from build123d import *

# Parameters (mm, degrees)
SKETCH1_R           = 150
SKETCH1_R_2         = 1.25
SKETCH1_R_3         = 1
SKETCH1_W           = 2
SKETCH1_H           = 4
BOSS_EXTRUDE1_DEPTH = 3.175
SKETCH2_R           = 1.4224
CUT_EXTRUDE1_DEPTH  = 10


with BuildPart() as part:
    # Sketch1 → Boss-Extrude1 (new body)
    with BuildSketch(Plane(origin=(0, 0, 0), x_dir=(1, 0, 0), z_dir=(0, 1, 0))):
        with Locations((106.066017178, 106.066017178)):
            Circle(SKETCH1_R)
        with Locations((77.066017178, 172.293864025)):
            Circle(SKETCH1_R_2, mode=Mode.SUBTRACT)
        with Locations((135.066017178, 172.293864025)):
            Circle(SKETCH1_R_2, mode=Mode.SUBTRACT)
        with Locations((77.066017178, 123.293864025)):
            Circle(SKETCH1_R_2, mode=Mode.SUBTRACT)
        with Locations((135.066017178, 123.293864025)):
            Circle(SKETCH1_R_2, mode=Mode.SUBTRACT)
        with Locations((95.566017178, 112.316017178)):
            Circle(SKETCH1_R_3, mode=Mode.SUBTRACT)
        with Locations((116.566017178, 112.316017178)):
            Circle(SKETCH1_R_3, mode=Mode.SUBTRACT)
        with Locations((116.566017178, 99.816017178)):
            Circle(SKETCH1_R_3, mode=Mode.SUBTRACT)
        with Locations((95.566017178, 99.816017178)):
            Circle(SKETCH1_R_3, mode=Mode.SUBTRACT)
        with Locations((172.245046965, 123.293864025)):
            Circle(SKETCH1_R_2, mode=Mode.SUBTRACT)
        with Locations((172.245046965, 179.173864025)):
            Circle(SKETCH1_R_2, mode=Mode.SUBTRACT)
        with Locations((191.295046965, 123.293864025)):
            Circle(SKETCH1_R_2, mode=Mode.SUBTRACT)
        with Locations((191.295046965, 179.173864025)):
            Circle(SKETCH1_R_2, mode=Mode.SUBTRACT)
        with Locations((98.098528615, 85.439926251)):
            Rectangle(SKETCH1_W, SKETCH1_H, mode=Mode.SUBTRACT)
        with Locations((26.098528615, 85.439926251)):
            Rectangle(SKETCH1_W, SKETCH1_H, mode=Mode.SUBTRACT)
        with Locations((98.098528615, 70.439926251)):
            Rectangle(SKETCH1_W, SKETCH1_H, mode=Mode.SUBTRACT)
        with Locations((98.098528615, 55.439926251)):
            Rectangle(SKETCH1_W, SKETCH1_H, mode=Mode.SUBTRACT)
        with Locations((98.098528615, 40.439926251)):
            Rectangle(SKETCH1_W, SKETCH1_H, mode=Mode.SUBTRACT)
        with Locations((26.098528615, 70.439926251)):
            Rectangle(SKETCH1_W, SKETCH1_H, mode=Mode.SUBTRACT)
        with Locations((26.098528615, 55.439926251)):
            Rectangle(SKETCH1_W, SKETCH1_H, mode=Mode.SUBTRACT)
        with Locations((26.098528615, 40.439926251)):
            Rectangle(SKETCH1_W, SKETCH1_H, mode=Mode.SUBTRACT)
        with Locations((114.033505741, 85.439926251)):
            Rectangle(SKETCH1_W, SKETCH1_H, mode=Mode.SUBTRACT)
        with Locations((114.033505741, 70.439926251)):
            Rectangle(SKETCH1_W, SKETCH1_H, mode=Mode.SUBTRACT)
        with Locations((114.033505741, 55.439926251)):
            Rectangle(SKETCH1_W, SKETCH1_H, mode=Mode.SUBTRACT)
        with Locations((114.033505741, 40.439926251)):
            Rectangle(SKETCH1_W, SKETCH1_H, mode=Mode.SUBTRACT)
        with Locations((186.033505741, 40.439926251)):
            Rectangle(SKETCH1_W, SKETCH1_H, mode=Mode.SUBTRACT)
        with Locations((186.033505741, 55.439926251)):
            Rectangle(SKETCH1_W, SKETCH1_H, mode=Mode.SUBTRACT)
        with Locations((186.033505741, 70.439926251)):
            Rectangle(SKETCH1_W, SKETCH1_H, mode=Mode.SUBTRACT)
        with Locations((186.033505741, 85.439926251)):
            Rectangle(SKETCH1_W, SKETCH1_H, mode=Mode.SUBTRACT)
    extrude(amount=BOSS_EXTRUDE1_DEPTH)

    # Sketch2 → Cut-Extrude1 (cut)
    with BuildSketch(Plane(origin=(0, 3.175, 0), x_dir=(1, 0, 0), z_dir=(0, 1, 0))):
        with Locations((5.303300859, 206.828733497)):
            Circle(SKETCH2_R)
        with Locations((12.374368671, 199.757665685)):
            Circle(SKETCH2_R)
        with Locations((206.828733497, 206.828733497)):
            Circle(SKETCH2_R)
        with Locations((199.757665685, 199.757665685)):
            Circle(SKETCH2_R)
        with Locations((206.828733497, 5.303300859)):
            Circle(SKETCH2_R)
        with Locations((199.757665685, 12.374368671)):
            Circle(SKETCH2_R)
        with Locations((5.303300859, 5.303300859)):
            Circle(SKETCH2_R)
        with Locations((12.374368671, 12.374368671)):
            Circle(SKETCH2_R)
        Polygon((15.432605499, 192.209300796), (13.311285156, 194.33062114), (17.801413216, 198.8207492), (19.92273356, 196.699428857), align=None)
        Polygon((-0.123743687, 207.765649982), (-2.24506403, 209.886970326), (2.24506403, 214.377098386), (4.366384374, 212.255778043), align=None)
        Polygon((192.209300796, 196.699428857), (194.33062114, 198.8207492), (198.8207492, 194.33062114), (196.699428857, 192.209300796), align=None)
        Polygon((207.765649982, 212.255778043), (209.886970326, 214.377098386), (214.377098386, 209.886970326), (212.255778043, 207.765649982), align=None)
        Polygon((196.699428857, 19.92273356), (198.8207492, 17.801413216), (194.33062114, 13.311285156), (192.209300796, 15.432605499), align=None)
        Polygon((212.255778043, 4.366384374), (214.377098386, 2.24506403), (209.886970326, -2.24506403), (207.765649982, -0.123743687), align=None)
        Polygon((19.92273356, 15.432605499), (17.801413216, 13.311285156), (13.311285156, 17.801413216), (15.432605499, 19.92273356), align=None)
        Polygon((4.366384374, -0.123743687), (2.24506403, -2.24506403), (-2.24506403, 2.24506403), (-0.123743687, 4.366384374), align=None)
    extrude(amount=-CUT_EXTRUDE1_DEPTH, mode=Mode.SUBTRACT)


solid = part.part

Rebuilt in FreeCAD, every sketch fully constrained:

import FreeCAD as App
import Part
import Sketcher
from FreeCAD import Vector
Q = App.Units.Quantity

doc = App.newDocument("Part")
body = doc.addObject("PartDesign::Body", "Body")

# Sketch on XZ plane
sketch1 = body.newObject("Sketcher::SketchObject", "Sketch")
sketch1.AttachmentSupport = (doc.getObject("XZ_Plane"), [""])
sketch1.MapMode = "FlatFace"
sketch1.addGeometry([
    Part.Circle(Vector(106.066017, -106.066017, 0), Vector(0, 0, 1), 150),  # 0
    Part.LineSegment(Vector(27.098529, -38.439926, 0), Vector(25.098529, -38.439926, 0)),  # 1
    Part.LineSegment(Vector(25.098529, -38.439926, 0), Vector(25.098529, -42.439926, 0)),  # 2
    Part.LineSegment(Vector(25.098529, -42.439926, 0), Vector(27.098529, -42.439926, 0)),  # 3
    Part.LineSegment(Vector(27.098529, -42.439926, 0), Vector(27.098529, -38.439926, 0)),  # 4
    Part.LineSegment(Vector(27.098529, -53.439926, 0), Vector(25.098529, -53.439926, 0)),  # 5
    Part.LineSegment(Vector(25.098529, -53.439926, 0), Vector(25.098529, -57.439926, 0)),  # 6
    Part.LineSegment(Vector(25.098529, -57.439926, 0), Vector(27.098529, -57.439926, 0)),  # 7
    Part.LineSegment(Vector(27.098529, -57.439926, 0), Vector(27.098529, -53.439926, 0)),  # 8
    Part.LineSegment(Vector(27.098529, -68.439926, 0), Vector(25.098529, -68.439926, 0)),  # 9
    Part.LineSegment(Vector(25.098529, -68.439926, 0), Vector(25.098529, -72.439926, 0)),  # 10
    Part.LineSegment(Vector(25.098529, -72.439926, 0), Vector(27.098529, -72.439926, 0)),  # 11
    Part.LineSegment(Vector(27.098529, -72.439926, 0), Vector(27.098529, -68.439926, 0)),  # 12
    Part.LineSegment(Vector(99.098529, -38.439926, 0), Vector(97.098529, -38.439926, 0)),  # 13
    Part.LineSegment(Vector(97.098529, -38.439926, 0), Vector(97.098529, -42.439926, 0)),  # 14
    Part.LineSegment(Vector(97.098529, -42.439926, 0), Vector(99.098529, -42.439926, 0)),  # 15
    Part.LineSegment(Vector(99.098529, -42.439926, 0), Vector(99.098529, -38.439926, 0)),  # 16
    Part.LineSegment(Vector(99.098529, -53.439926, 0), Vector(97.098529, -53.439926, 0)),  # 17
    Part.LineSegment(Vector(97.098529, -53.439926, 0), Vector(97.098529, -57.439926, 0)),  # 18
    Part.LineSegment(Vector(97.098529, -57.439926, 0), Vector(99.098529, -57.439926, 0)),  # 19
    Part.LineSegment(Vector(99.098529, -57.439926, 0), Vector(99.098529, -53.439926, 0)),  # 20
    Part.LineSegment(Vector(99.098529, -68.439926, 0), Vector(97.098529, -68.439926, 0)),  # 21
    Part.LineSegment(Vector(97.098529, -68.439926, 0), Vector(97.098529, -72.439926, 0)),  # 22
    Part.LineSegment(Vector(97.098529, -72.439926, 0), Vector(99.098529, -72.439926, 0)),  # 23
    Part.LineSegment(Vector(99.098529, -72.439926, 0), Vector(99.098529, -68.439926, 0)),  # 24
    Part.LineSegment(Vector(27.098529, -83.439926, 0), Vector(25.098529, -83.439926, 0)),  # 25
    Part.LineSegment(Vector(25.098529, -83.439926, 0), Vector(25.098529, -87.439926, 0)),  # 26
    Part.LineSegment(Vector(25.098529, -87.439926, 0), Vector(27.098529, -87.439926, 0)),  # 27
    Part.LineSegment(Vector(27.098529, -87.439926, 0), Vector(27.098529, -83.439926, 0)),  # 28
    Part.LineSegment(Vector(99.098529, -83.439926, 0), Vector(97.098529, -83.439926, 0)),  # 29
    Part.LineSegment(Vector(97.098529, -83.439926, 0), Vector(97.098529, -87.439926, 0)),  # 30
    Part.LineSegment(Vector(97.098529, -87.439926, 0), Vector(99.098529, -87.439926, 0)),  # 31
    Part.LineSegment(Vector(99.098529, -87.439926, 0), Vector(99.098529, -83.439926, 0)),  # 32
    Part.Circle(Vector(95.566017, -99.816017, 0), Vector(0, 0, 1), 1),  # 33
    Part.LineSegment(Vector(115.033506, -38.439926, 0), Vector(113.033506, -38.439926, 0)),  # 34
    Part.LineSegment(Vector(113.033506, -38.439926, 0), Vector(113.033506, -42.439926, 0)),  # 35
    Part.LineSegment(Vector(113.033506, -42.439926, 0), Vector(115.033506, -42.439926, 0)),  # 36
    Part.LineSegment(Vector(115.033506, -42.439926, 0), Vector(115.033506, -38.439926, 0)),  # 37
    Part.LineSegment(Vector(115.033506, -53.439926, 0), Vector(113.033506, -53.439926, 0)),  # 38
    Part.LineSegment(Vector(113.033506, -53.439926, 0), Vector(113.033506, -57.439926, 0)),  # 39
    Part.LineSegment(Vector(113.033506, -57.439926, 0), Vector(115.033506, -57.439926, 0)),  # 40
    Part.LineSegment(Vector(115.033506, -57.439926, 0), Vector(115.033506, -53.439926, 0)),  # 41
    Part.LineSegment(Vector(115.033506, -68.439926, 0), Vector(113.033506, -68.439926, 0)),  # 42
    Part.LineSegment(Vector(113.033506, -68.439926, 0), Vector(113.033506, -72.439926, 0)),  # 43
    Part.LineSegment(Vector(113.033506, -72.439926, 0), Vector(115.033506, -72.439926, 0)),  # 44
    Part.LineSegment(Vector(115.033506, -72.439926, 0), Vector(115.033506, -68.439926, 0)),  # 45
    Part.LineSegment(Vector(187.033506, -38.439926, 0), Vector(185.033506, -38.439926, 0)),  # 46
    Part.LineSegment(Vector(185.033506, -38.439926, 0), Vector(185.033506, -42.439926, 0)),  # 47
    Part.LineSegment(Vector(185.033506, -42.439926, 0), Vector(187.033506, -42.439926, 0)),  # 48
    Part.LineSegment(Vector(187.033506, -42.439926, 0), Vector(187.033506, -38.439926, 0)),  # 49
    Part.LineSegment(Vector(187.033506, -53.439926, 0), Vector(185.033506, -53.439926, 0)),  # 50
    Part.LineSegment(Vector(185.033506, -53.439926, 0), Vector(185.033506, -57.439926, 0)),  # 51
    Part.LineSegment(Vector(185.033506, -57.439926, 0), Vector(187.033506, -57.439926, 0)),  # 52
    Part.LineSegment(Vector(187.033506, -57.439926, 0), Vector(187.033506, -53.439926, 0)),  # 53
    Part.LineSegment(Vector(187.033506, -68.439926, 0), Vector(185.033506, -68.439926, 0)),  # 54
    Part.LineSegment(Vector(185.033506, -68.439926, 0), Vector(185.033506, -72.439926, 0)),  # 55
    Part.LineSegment(Vector(185.033506, -72.439926, 0), Vector(187.033506, -72.439926, 0)),  # 56
    Part.LineSegment(Vector(187.033506, -72.439926, 0), Vector(187.033506, -68.439926, 0)),  # 57
    Part.LineSegment(Vector(115.033506, -83.439926, 0), Vector(113.033506, -83.439926, 0)),  # 58
    Part.LineSegment(Vector(113.033506, -83.439926, 0), Vector(113.033506, -87.439926, 0)),  # 59
    Part.LineSegment(Vector(113.033506, -87.439926, 0), Vector(115.033506, -87.439926, 0)),  # 60
    Part.LineSegment(Vector(115.033506, -87.439926, 0), Vector(115.033506, -83.439926, 0)),  # 61
    Part.Circle(Vector(116.566017, -99.816017, 0), Vector(0, 0, 1), 1),  # 62
    Part.LineSegment(Vector(187.033506, -83.439926, 0), Vector(185.033506, -83.439926, 0)),  # 63
    Part.LineSegment(Vector(185.033506, -83.439926, 0), Vector(185.033506, -87.439926, 0)),  # 64
    Part.LineSegment(Vector(185.033506, -87.439926, 0), Vector(187.033506, -87.439926, 0)),  # 65
    Part.LineSegment(Vector(187.033506, -87.439926, 0), Vector(187.033506, -83.439926, 0)),  # 66
    Part.Circle(Vector(77.066017, -123.293864, 0), Vector(0, 0, 1), 1.25),  # 67
    Part.Circle(Vector(95.566017, -112.316017, 0), Vector(0, 0, 1), 1),  # 68
    Part.Circle(Vector(77.066017, -172.293864, 0), Vector(0, 0, 1), 1.25),  # 69
    Part.Circle(Vector(116.566017, -112.316017, 0), Vector(0, 0, 1), 1),  # 70
    Part.Circle(Vector(135.066017, -123.293864, 0), Vector(0, 0, 1), 1.25),  # 71
    Part.Circle(Vector(172.245047, -123.293864, 0), Vector(0, 0, 1), 1.25),  # 72
    Part.Circle(Vector(191.295047, -123.293864, 0), Vector(0, 0, 1), 1.25),  # 73
    Part.Circle(Vector(135.066017, -172.293864, 0), Vector(0, 0, 1), 1.25),  # 74
    Part.Circle(Vector(172.245047, -179.173864, 0), Vector(0, 0, 1), 1.25),  # 75
    Part.Circle(Vector(191.295047, -179.173864, 0), Vector(0, 0, 1), 1.25),  # 76
], False)
sketch1.addConstraint([
    Sketcher.Constraint("Coincident", 1, 2, 2, 1),
    Sketcher.Constraint("Coincident", 2, 2, 3, 1),
    Sketcher.Constraint("Coincident", 3, 2, 4, 1),
    Sketcher.Constraint("Coincident", 4, 2, 1, 1),
    Sketcher.Constraint("Coincident", 5, 2, 6, 1),
    Sketcher.Constraint("Coincident", 6, 2, 7, 1),
    Sketcher.Constraint("Coincident", 7, 2, 8, 1),
    Sketcher.Constraint("Coincident", 8, 2, 5, 1),
    Sketcher.Constraint("Coincident", 9, 2, 10, 1),
    Sketcher.Constraint("Coincident", 10, 2, 11, 1),
    Sketcher.Constraint("Coincident", 11, 2, 12, 1),
    Sketcher.Constraint("Coincident", 12, 2, 9, 1),
    Sketcher.Constraint("Coincident", 13, 2, 14, 1),
    Sketcher.Constraint("Coincident", 14, 2, 15, 1),
    Sketcher.Constraint("Coincident", 15, 2, 16, 1),
    Sketcher.Constraint("Coincident", 16, 2, 13, 1),
    Sketcher.Constraint("Coincident", 17, 2, 18, 1),
    Sketcher.Constraint("Coincident", 18, 2, 19, 1),
    Sketcher.Constraint("Coincident", 19, 2, 20, 1),
    Sketcher.Constraint("Coincident", 20, 2, 17, 1),
    Sketcher.Constraint("Coincident", 21, 2, 22, 1),
    Sketcher.Constraint("Coincident", 22, 2, 23, 1),
    Sketcher.Constraint("Coincident", 23, 2, 24, 1),
    Sketcher.Constraint("Coincident", 24, 2, 21, 1),
    Sketcher.Constraint("Coincident", 25, 2, 26, 1),
    Sketcher.Constraint("Coincident", 26, 2, 27, 1),
    Sketcher.Constraint("Coincident", 27, 2, 28, 1),
    Sketcher.Constraint("Coincident", 28, 2, 25, 1),
    Sketcher.Constraint("Coincident", 29, 2, 30, 1),
    Sketcher.Constraint("Coincident", 30, 2, 31, 1),
    Sketcher.Constraint("Coincident", 31, 2, 32, 1),
    Sketcher.Constraint("Coincident", 32, 2, 29, 1),
    Sketcher.Constraint("Coincident", 34, 2, 35, 1),
    Sketcher.Constraint("Coincident", 35, 2, 36, 1),
    Sketcher.Constraint("Coincident", 36, 2, 37, 1),
    Sketcher.Constraint("Coincident", 37, 2, 34, 1),
    Sketcher.Constraint("Coincident", 38, 2, 39, 1),
    Sketcher.Constraint("Coincident", 39, 2, 40, 1),
    Sketcher.Constraint("Coincident", 40, 2, 41, 1),
    Sketcher.Constraint("Coincident", 41, 2, 38, 1),
    Sketcher.Constraint("Coincident", 42, 2, 43, 1),
    Sketcher.Constraint("Coincident", 43, 2, 44, 1),
    Sketcher.Constraint("Coincident", 44, 2, 45, 1),
    Sketcher.Constraint("Coincident", 45, 2, 42, 1),
    Sketcher.Constraint("Coincident", 46, 2, 47, 1),
    Sketcher.Constraint("Coincident", 47, 2, 48, 1),
    Sketcher.Constraint("Coincident", 48, 2, 49, 1),
    Sketcher.Constraint("Coincident", 49, 2, 46, 1),
    Sketcher.Constraint("Coincident", 50, 2, 51, 1),
    Sketcher.Constraint("Coincident", 51, 2, 52, 1),
    Sketcher.Constraint("Coincident", 52, 2, 53, 1),
    Sketcher.Constraint("Coincident", 53, 2, 50, 1),
    Sketcher.Constraint("Coincident", 54, 2, 55, 1),
    Sketcher.Constraint("Coincident", 55, 2, 56, 1),
    Sketcher.Constraint("Coincident", 56, 2, 57, 1),
    Sketcher.Constraint("Coincident", 57, 2, 54, 1),
    Sketcher.Constraint("Coincident", 58, 2, 59, 1),
    Sketcher.Constraint("Coincident", 59, 2, 60, 1),
    Sketcher.Constraint("Coincident", 60, 2, 61, 1),
    Sketcher.Constraint("Coincident", 61, 2, 58, 1),
    Sketcher.Constraint("Coincident", 63, 2, 64, 1),
    Sketcher.Constraint("Coincident", 64, 2, 65, 1),
    Sketcher.Constraint("Coincident", 65, 2, 66, 1),
    Sketcher.Constraint("Coincident", 66, 2, 63, 1),
    Sketcher.Constraint("Horizontal", 1),
    Sketcher.Constraint("Vertical", 2),
    Sketcher.Constraint("Horizontal", 3),
    Sketcher.Constraint("Vertical", 4),
    Sketcher.Constraint("Horizontal", 5),
    Sketcher.Constraint("Vertical", 6),
    Sketcher.Constraint("Horizontal", 7),
    Sketcher.Constraint("Vertical", 8),
    Sketcher.Constraint("Horizontal", 9),
    Sketcher.Constraint("Vertical", 10),
    Sketcher.Constraint("Horizontal", 11),
    Sketcher.Constraint("Vertical", 12),
    Sketcher.Constraint("Horizontal", 13),
    Sketcher.Constraint("Vertical", 14),
    Sketcher.Constraint("Horizontal", 15),
    Sketcher.Constraint("Vertical", 16),
    Sketcher.Constraint("Horizontal", 17),
    Sketcher.Constraint("Vertical", 18),
    Sketcher.Constraint("Horizontal", 19),
    Sketcher.Constraint("Vertical", 20),
    Sketcher.Constraint("Horizontal", 21),
    Sketcher.Constraint("Vertical", 22),
    Sketcher.Constraint("Horizontal", 23),
    Sketcher.Constraint("Vertical", 24),
    Sketcher.Constraint("Horizontal", 25),
    Sketcher.Constraint("Vertical", 26),
    Sketcher.Constraint("Horizontal", 27),
    Sketcher.Constraint("Vertical", 28),
    Sketcher.Constraint("Horizontal", 29),
    Sketcher.Constraint("Vertical", 30),
    Sketcher.Constraint("Horizontal", 31),
    Sketcher.Constraint("Vertical", 32),
    Sketcher.Constraint("Horizontal", 34),
    Sketcher.Constraint("Vertical", 35),
    Sketcher.Constraint("Horizontal", 36),
    Sketcher.Constraint("Vertical", 37),
    Sketcher.Constraint("Horizontal", 38),
    Sketcher.Constraint("Vertical", 39),
    Sketcher.Constraint("Horizontal", 40),
    Sketcher.Constraint("Vertical", 41),
    Sketcher.Constraint("Horizontal", 42),
    Sketcher.Constraint("Vertical", 43),
    Sketcher.Constraint("Horizontal", 44),
    Sketcher.Constraint("Vertical", 45),
    Sketcher.Constraint("Horizontal", 46),
    Sketcher.Constraint("Vertical", 47),
    Sketcher.Constraint("Horizontal", 48),
    Sketcher.Constraint("Vertical", 49),
    Sketcher.Constraint("Horizontal", 50),
    Sketcher.Constraint("Vertical", 51),
    Sketcher.Constraint("Horizontal", 52),
    Sketcher.Constraint("Vertical", 53),
    Sketcher.Constraint("Horizontal", 54),
    Sketcher.Constraint("Vertical", 55),
    Sketcher.Constraint("Horizontal", 56),
    Sketcher.Constraint("Vertical", 57),
    Sketcher.Constraint("Horizontal", 58),
    Sketcher.Constraint("Vertical", 59),
    Sketcher.Constraint("Horizontal", 60),
    Sketcher.Constraint("Vertical", 61),
    Sketcher.Constraint("Horizontal", 63),
    Sketcher.Constraint("Vertical", 64),
    Sketcher.Constraint("Horizontal", 65),
    Sketcher.Constraint("Vertical", 66),
    Sketcher.Constraint("Equal", 33, 62),
    Sketcher.Constraint("Equal", 62, 68),
    Sketcher.Constraint("Equal", 67, 69),
    Sketcher.Constraint("Equal", 68, 70),
    Sketcher.Constraint("Equal", 69, 71),
    Sketcher.Constraint("Equal", 71, 72),
    Sketcher.Constraint("Equal", 72, 73),
    Sketcher.Constraint("Equal", 73, 74),
    Sketcher.Constraint("Equal", 74, 75),
    Sketcher.Constraint("Equal", 75, 76),
    Sketcher.Constraint("Horizontal", 33, 3, 62, 3),
    Sketcher.Constraint("Horizontal", 68, 3, 70, 3),
    Sketcher.Constraint("Horizontal", 67, 3, 71, 3),
    Sketcher.Constraint("Horizontal", 71, 3, 72, 3),
    Sketcher.Constraint("Horizontal", 72, 3, 73, 3),
    Sketcher.Constraint("Horizontal", 69, 3, 74, 3),
    Sketcher.Constraint("Horizontal", 75, 3, 76, 3),
    Sketcher.Constraint("Horizontal", 4, 2, 13, 2),
    Sketcher.Constraint("Horizontal", 3, 2, 14, 2),
    Sketcher.Constraint("Horizontal", 8, 2, 17, 2),
    Sketcher.Constraint("Horizontal", 7, 2, 18, 2),
    Sketcher.Constraint("Horizontal", 12, 2, 21, 2),
    Sketcher.Constraint("Horizontal", 11, 2, 22, 2),
    Sketcher.Constraint("Horizontal", 28, 2, 29, 2),
    Sketcher.Constraint("Horizontal", 27, 2, 30, 2),
    Sketcher.Constraint("Horizontal", 16, 2, 34, 2),
    Sketcher.Constraint("Horizontal", 15, 2, 35, 2),
    Sketcher.Constraint("Horizontal", 20, 2, 38, 2),
    Sketcher.Constraint("Horizontal", 19, 2, 39, 2),
    Sketcher.Constraint("Horizontal", 24, 2, 42, 2),
    Sketcher.Constraint("Horizontal", 23, 2, 43, 2),
    Sketcher.Constraint("Horizontal", 37, 2, 46, 2),
    Sketcher.Constraint("Horizontal", 36, 2, 47, 2),
    Sketcher.Constraint("Horizontal", 41, 2, 50, 2),
    Sketcher.Constraint("Horizontal", 40, 2, 51, 2),
    Sketcher.Constraint("Horizontal", 45, 2, 54, 2),
    Sketcher.Constraint("Horizontal", 44, 2, 55, 2),
    Sketcher.Constraint("Horizontal", 32, 2, 58, 2),
    Sketcher.Constraint("Horizontal", 31, 2, 59, 2),
    Sketcher.Constraint("Horizontal", 61, 2, 63, 2),
    Sketcher.Constraint("Horizontal", 60, 2, 64, 2),
    Sketcher.Constraint("Vertical", 33, 3, 68, 3),
    Sketcher.Constraint("Vertical", 67, 3, 69, 3),
    Sketcher.Constraint("Vertical", 62, 3, 70, 3),
    Sketcher.Constraint("Vertical", 71, 3, 74, 3),
    Sketcher.Constraint("Vertical", 72, 3, 75, 3),
    Sketcher.Constraint("Vertical", 73, 3, 76, 3),
    Sketcher.Constraint("Vertical", 2, 2, 5, 2),
    Sketcher.Constraint("Vertical", 4, 2, 7, 2),
    Sketcher.Constraint("Vertical", 6, 2, 9, 2),
    Sketcher.Constraint("Vertical", 8, 2, 11, 2),
    Sketcher.Constraint("Vertical", 14, 2, 17, 2),
    Sketcher.Constraint("Vertical", 16, 2, 19, 2),
    Sketcher.Constraint("Vertical", 18, 2, 21, 2),
    Sketcher.Constraint("Vertical", 20, 2, 23, 2),
    Sketcher.Constraint("Vertical", 10, 2, 25, 2),
    Sketcher.Constraint("Vertical", 12, 2, 27, 2),
    Sketcher.Constraint("Vertical", 22, 2, 29, 2),
    Sketcher.Constraint("Vertical", 24, 2, 31, 2),
    Sketcher.Constraint("Vertical", 35, 2, 38, 2),
    Sketcher.Constraint("Vertical", 37, 2, 40, 2),
    Sketcher.Constraint("Vertical", 39, 2, 42, 2),
    Sketcher.Constraint("Vertical", 41, 2, 44, 2),
    Sketcher.Constraint("Vertical", 47, 2, 50, 2),
    Sketcher.Constraint("Vertical", 49, 2, 52, 2),
    Sketcher.Constraint("Vertical", 51, 2, 54, 2),
    Sketcher.Constraint("Vertical", 53, 2, 56, 2),
    Sketcher.Constraint("Vertical", 43, 2, 58, 2),
    Sketcher.Constraint("Vertical", 45, 2, 60, 2),
    Sketcher.Constraint("Vertical", 55, 2, 63, 2),
    Sketcher.Constraint("Vertical", 57, 2, 65, 2),
    Sketcher.Constraint("Equal", 11, 13),
    Sketcher.Constraint("Equal", 31, 34),
    Sketcher.Constraint("Equal", 44, 46),
    Sketcher.Constraint("Equal", 4, 6),
    Sketcher.Constraint("Equal", 8, 10),
    Sketcher.Constraint("Equal", 24, 26),
    Sketcher.Constraint("Diameter", 0, Q("300 mm")),
    Sketcher.Constraint("Diameter", 33, Q("2 mm")),
    Sketcher.Constraint("Diameter", 67, Q("2.5 mm")),
    Sketcher.Constraint("DistanceX", 1, 2, 1, 1, Q("2 mm")),
    Sketcher.Constraint("DistanceY", 2, 2, 2, 1, Q("4 mm")),
    Sketcher.Constraint("DistanceX", -1, 1, 1, 2, Q("25.098529 mm")),
    Sketcher.Constraint("DistanceX", -1, 1, 13, 2, Q("97.098529 mm")),
    Sketcher.Constraint("DistanceX", -1, 1, 0, 3, Q("106.066017 mm")),
    Sketcher.Constraint("DistanceY", 0, 3, -1, 1, Q("106.066017 mm")),
    Sketcher.Constraint("DistanceX", -1, 1, 33, 3, Q("95.566017 mm")),
    Sketcher.Constraint("DistanceY", 33, 3, -1, 1, Q("99.816017 mm")),
    Sketcher.Constraint("DistanceX", -1, 1, 62, 3, Q("116.566017 mm")),
    Sketcher.Constraint("DistanceX", -1, 1, 67, 3, Q("77.066017 mm")),
    Sketcher.Constraint("DistanceY", 67, 3, -1, 1, Q("123.293864 mm")),
    Sketcher.Constraint("DistanceY", 68, 3, -1, 1, Q("112.316017 mm")),
    Sketcher.Constraint("DistanceY", 69, 3, -1, 1, Q("172.293864 mm")),
    Sketcher.Constraint("DistanceX", -1, 1, 71, 3, Q("135.066017 mm")),
    Sketcher.Constraint("DistanceX", -1, 1, 72, 3, Q("172.245047 mm")),
    Sketcher.Constraint("DistanceX", -1, 1, 73, 3, Q("191.295047 mm")),
    Sketcher.Constraint("DistanceY", 75, 3, -1, 1, Q("179.173864 mm")),
    Sketcher.Constraint("DistanceY", 1, 2, -1, 1, Q("38.439926 mm")),
    Sketcher.Constraint("DistanceY", 5, 2, -1, 1, Q("53.439926 mm")),
    Sketcher.Constraint("DistanceY", 9, 2, -1, 1, Q("68.439926 mm")),
    Sketcher.Constraint("DistanceY", 25, 2, -1, 1, Q("83.439926 mm")),
    Sketcher.Constraint("DistanceX", -1, 1, 34, 2, Q("113.033506 mm")),
    Sketcher.Constraint("DistanceX", -1, 1, 46, 2, Q("185.033506 mm")),
])
pad1 = body.newObject("PartDesign::Pad", "Pad")
pad1.Profile = sketch1
pad1.Length = 3.175
pad1.Reversed = True

# Sketch on XZ plane
sketch2 = body.newObject("Sketcher::SketchObject", "Sketch001")
sketch2.AttachmentSupport = (doc.getObject("XZ_Plane"), [""])
sketch2.MapMode = "FlatFace"
sketch2.AttachmentOffset = App.Placement(Vector(0, 0, -3.175), App.Rotation())
sketch2.addGeometry([
    Part.Circle(Vector(5.303301, -206.828733, 0), Vector(0, 0, 1), 1.4224),  # 0
    Part.Circle(Vector(12.374369, -199.757666, 0), Vector(0, 0, 1), 1.4224),  # 1
    Part.Circle(Vector(206.828733, -206.828733, 0), Vector(0, 0, 1), 1.4224),  # 2
    Part.Circle(Vector(199.757666, -199.757666, 0), Vector(0, 0, 1), 1.4224),  # 3
    Part.Circle(Vector(206.828733, -5.303301, 0), Vector(0, 0, 1), 1.4224),  # 4
    Part.Circle(Vector(199.757666, -12.374369, 0), Vector(0, 0, 1), 1.4224),  # 5
    Part.Circle(Vector(5.303301, -5.303301, 0), Vector(0, 0, 1), 1.4224),  # 6
    Part.Circle(Vector(12.374369, -12.374369, 0), Vector(0, 0, 1), 1.4224),  # 7
    Part.LineSegment(Vector(13.311285, -194.330621, 0), Vector(15.432605, -192.209301, 0)),  # 8
    Part.LineSegment(Vector(15.432605, -192.209301, 0), Vector(19.922734, -196.699429, 0)),  # 9
    Part.LineSegment(Vector(19.922734, -196.699429, 0), Vector(17.801413, -198.820749, 0)),  # 10
    Part.LineSegment(Vector(17.801413, -198.820749, 0), Vector(13.311285, -194.330621, 0)),  # 11
    Part.LineSegment(Vector(-2.245064, -209.88697, 0), Vector(-0.123744, -207.76565, 0)),  # 12
    Part.LineSegment(Vector(-0.123744, -207.76565, 0), Vector(4.366384, -212.255778, 0)),  # 13
    Part.LineSegment(Vector(4.366384, -212.255778, 0), Vector(2.245064, -214.377098, 0)),  # 14
    Part.LineSegment(Vector(2.245064, -214.377098, 0), Vector(-2.245064, -209.88697, 0)),  # 15
    Part.LineSegment(Vector(194.330621, -198.820749, 0), Vector(192.209301, -196.699429, 0)),  # 16
    Part.LineSegment(Vector(192.209301, -196.699429, 0), Vector(196.699429, -192.209301, 0)),  # 17
    Part.LineSegment(Vector(196.699429, -192.209301, 0), Vector(198.820749, -194.330621, 0)),  # 18
    Part.LineSegment(Vector(198.820749, -194.330621, 0), Vector(194.330621, -198.820749, 0)),  # 19
    Part.LineSegment(Vector(209.88697, -214.377098, 0), Vector(207.76565, -212.255778, 0)),  # 20
    Part.LineSegment(Vector(207.76565, -212.255778, 0), Vector(212.255778, -207.76565, 0)),  # 21
    Part.LineSegment(Vector(212.255778, -207.76565, 0), Vector(214.377098, -209.88697, 0)),  # 22
    Part.LineSegment(Vector(214.377098, -209.88697, 0), Vector(209.88697, -214.377098, 0)),  # 23
    Part.LineSegment(Vector(198.820749, -17.801413, 0), Vector(196.699429, -19.922734, 0)),  # 24
    Part.LineSegment(Vector(196.699429, -19.922734, 0), Vector(192.209301, -15.432605, 0)),  # 25
    Part.LineSegment(Vector(192.209301, -15.432605, 0), Vector(194.330621, -13.311285, 0)),  # 26
    Part.LineSegment(Vector(194.330621, -13.311285, 0), Vector(198.820749, -17.801413, 0)),  # 27
    Part.LineSegment(Vector(214.377098, -2.245064, 0), Vector(212.255778, -4.366384, 0)),  # 28
    Part.LineSegment(Vector(212.255778, -4.366384, 0), Vector(207.76565, 0.123744, 0)),  # 29
    Part.LineSegment(Vector(207.76565, 0.123744, 0), Vector(209.88697, 2.245064, 0)),  # 30
    Part.LineSegment(Vector(209.88697, 2.245064, 0), Vector(214.377098, -2.245064, 0)),  # 31
    Part.LineSegment(Vector(17.801413, -13.311285, 0), Vector(19.922734, -15.432605, 0)),  # 32
    Part.LineSegment(Vector(19.922734, -15.432605, 0), Vector(15.432605, -19.922734, 0)),  # 33
    Part.LineSegment(Vector(15.432605, -19.922734, 0), Vector(13.311285, -17.801413, 0)),  # 34
    Part.LineSegment(Vector(13.311285, -17.801413, 0), Vector(17.801413, -13.311285, 0)),  # 35
    Part.LineSegment(Vector(2.245064, 2.245064, 0), Vector(4.366384, 0.123744, 0)),  # 36
    Part.LineSegment(Vector(4.366384, 0.123744, 0), Vector(-0.123744, -4.366384, 0)),  # 37
    Part.LineSegment(Vector(-0.123744, -4.366384, 0), Vector(-2.245064, -2.245064, 0)),  # 38
    Part.LineSegment(Vector(-2.245064, -2.245064, 0), Vector(2.245064, 2.245064, 0)),  # 39
], False)
sketch2.addConstraint([
    Sketcher.Constraint("Coincident", 8, 2, 9, 1),
    Sketcher.Constraint("Coincident", 9, 2, 10, 1),
    Sketcher.Constraint("Coincident", 10, 2, 11, 1),
    Sketcher.Constraint("Coincident", 11, 2, 8, 1),
    Sketcher.Constraint("Coincident", 12, 2, 13, 1),
    Sketcher.Constraint("Coincident", 13, 2, 14, 1),
    Sketcher.Constraint("Coincident", 14, 2, 15, 1),
    Sketcher.Constraint("Coincident", 15, 2, 12, 1),
    Sketcher.Constraint("Coincident", 16, 2, 17, 1),
    Sketcher.Constraint("Coincident", 17, 2, 18, 1),
    Sketcher.Constraint("Coincident", 18, 2, 19, 1),
    Sketcher.Constraint("Coincident", 19, 2, 16, 1),
    Sketcher.Constraint("Coincident", 20, 2, 21, 1),
    Sketcher.Constraint("Coincident", 21, 2, 22, 1),
    Sketcher.Constraint("Coincident", 22, 2, 23, 1),
    Sketcher.Constraint("Coincident", 23, 2, 20, 1),
    Sketcher.Constraint("Coincident", 24, 2, 25, 1),
    Sketcher.Constraint("Coincident", 25, 2, 26, 1),
    Sketcher.Constraint("Coincident", 26, 2, 27, 1),
    Sketcher.Constraint("Coincident", 27, 2, 24, 1),
    Sketcher.Constraint("Coincident", 28, 2, 29, 1),
    Sketcher.Constraint("Coincident", 29, 2, 30, 1),
    Sketcher.Constraint("Coincident", 30, 2, 31, 1),
    Sketcher.Constraint("Coincident", 31, 2, 28, 1),
    Sketcher.Constraint("Coincident", 32, 2, 33, 1),
    Sketcher.Constraint("Coincident", 33, 2, 34, 1),
    Sketcher.Constraint("Coincident", 34, 2, 35, 1),
    Sketcher.Constraint("Coincident", 35, 2, 32, 1),
    Sketcher.Constraint("Coincident", 36, 2, 37, 1),
    Sketcher.Constraint("Coincident", 37, 2, 38, 1),
    Sketcher.Constraint("Coincident", 38, 2, 39, 1),
    Sketcher.Constraint("Coincident", 39, 2, 36, 1),
    Sketcher.Constraint("Equal", 0, 1),
    Sketcher.Constraint("Equal", 1, 2),
    Sketcher.Constraint("Equal", 2, 3),
    Sketcher.Constraint("Equal", 3, 4),
    Sketcher.Constraint("Equal", 4, 5),
    Sketcher.Constraint("Equal", 5, 6),
    Sketcher.Constraint("Equal", 6, 7),
    Sketcher.Constraint("Symmetric", 38, 2, 39, 2, -1, 1),
    Sketcher.Constraint("Perpendicular", 8, 9),
    Sketcher.Constraint("Perpendicular", 9, 10),
    Sketcher.Constraint("Perpendicular", 10, 11),
    Sketcher.Constraint("Perpendicular", 11, 12),
    Sketcher.Constraint("Perpendicular", 12, 13),
    Sketcher.Constraint("Perpendicular", 13, 14),
    Sketcher.Constraint("Perpendicular", 14, 15),
    Sketcher.Constraint("Parallel", 15, 16),
    Sketcher.Constraint("Perpendicular", 16, 17),
    Sketcher.Constraint("Perpendicular", 17, 18),
    Sketcher.Constraint("Perpendicular", 18, 19),
    Sketcher.Constraint("Perpendicular", 19, 20),
    Sketcher.Constraint("Perpendicular", 20, 21),
    Sketcher.Constraint("Perpendicular", 21, 22),
    Sketcher.Constraint("Perpendicular", 22, 23),
    Sketcher.Constraint("Parallel", 23, 24),
    Sketcher.Constraint("Perpendicular", 24, 25),
    Sketcher.Constraint("Perpendicular", 25, 26),
    Sketcher.Constraint("Perpendicular", 26, 27),
    Sketcher.Constraint("Perpendicular", 27, 28),
    Sketcher.Constraint("Perpendicular", 28, 29),
    Sketcher.Constraint("Perpendicular", 29, 30),
    Sketcher.Constraint("Perpendicular", 30, 31),
    Sketcher.Constraint("Parallel", 31, 32),
    Sketcher.Constraint("Perpendicular", 32, 33),
    Sketcher.Constraint("Perpendicular", 33, 34),
    Sketcher.Constraint("Perpendicular", 34, 35),
    Sketcher.Constraint("Perpendicular", 35, 36),
    Sketcher.Constraint("Perpendicular", 36, 37),
    Sketcher.Constraint("Perpendicular", 37, 38),
    Sketcher.Constraint("Perpendicular", 38, 39),
    Sketcher.Constraint("Horizontal", 0, 3, 2, 3),
    Sketcher.Constraint("Horizontal", 1, 3, 3, 3),
    Sketcher.Constraint("Horizontal", 4, 3, 6, 3),
    Sketcher.Constraint("Horizontal", 5, 3, 7, 3),
    Sketcher.Constraint("Horizontal", 9, 2, 16, 2),
    Sketcher.Constraint("Horizontal", 8, 2, 17, 2),
    Sketcher.Constraint("Horizontal", 11, 2, 18, 2),
    Sketcher.Constraint("Horizontal", 13, 2, 20, 2),
    Sketcher.Constraint("Horizontal", 12, 2, 21, 2),
    Sketcher.Constraint("Horizontal", 15, 2, 22, 2),
    Sketcher.Constraint("Horizontal", 25, 2, 32, 2),
    Sketcher.Constraint("Horizontal", 24, 2, 33, 2),
    Sketcher.Constraint("Horizontal", 27, 2, 34, 2),
    Sketcher.Constraint("Horizontal", 29, 2, 36, 2),
    Sketcher.Constraint("Horizontal", 28, 2, 37, 2),
    Sketcher.Constraint("Horizontal", 31, 2, 38, 2),
    Sketcher.Constraint("Vertical", 2, 3, 4, 3),
    Sketcher.Constraint("Vertical", 3, 3, 5, 3),
    Sketcher.Constraint("Vertical", 0, 3, 6, 3),
    Sketcher.Constraint("Vertical", 1, 3, 7, 3),
    Sketcher.Constraint("Vertical", 17, 2, 24, 2),
    Sketcher.Constraint("Vertical", 16, 2, 25, 2),
    Sketcher.Constraint("Vertical", 19, 2, 26, 2),
    Sketcher.Constraint("Vertical", 21, 2, 28, 2),
    Sketcher.Constraint("Vertical", 20, 2, 29, 2),
    Sketcher.Constraint("Vertical", 23, 2, 30, 2),
    Sketcher.Constraint("Vertical", 9, 2, 32, 2),
    Sketcher.Constraint("Vertical", 8, 2, 33, 2),
    Sketcher.Constraint("Vertical", 13, 2, 36, 2),
    Sketcher.Constraint("Equal", 10, 12),
    Sketcher.Constraint("Equal", 11, 13),
    Sketcher.Constraint("Distance", 8, Q("3 mm")),
    Sketcher.Constraint("Diameter", 0, Q("2.8448 mm")),
    Sketcher.Constraint("Distance", 9, Q("6.35 mm")),
    Sketcher.Constraint("DistanceY", 8, 2, 6, 3, Q("186.906 mm")),
    Sketcher.Constraint("DistanceX", -1, 1, 0, 3, Q("5.303301 mm")),
    Sketcher.Constraint("DistanceY", 4, 3, -1, 1, Q("5.303301 mm")),
    Sketcher.Constraint("DistanceY", 14, 2, -1, 1, Q("214.377098 mm")),
    Sketcher.Constraint("DistanceX", -1, 1, 16, 2, Q("192.209301 mm")),
    Sketcher.Constraint("DistanceX", -1, 1, 22, 2, Q("214.377098 mm")),
    Sketcher.Constraint("DistanceX", 13, 2, 11, 2, Q("8.944901 mm")),
    Sketcher.Constraint("DistanceY", 26, 2, 28, 2, Q("8.944901 mm")),
    Sketcher.Constraint("DistanceX", -1, 1, 1, 3, Q("12.374369 mm")),
    Sketcher.Constraint("DistanceY", 5, 3, -1, 1, Q("12.374369 mm")),
    Sketcher.Constraint("DistanceX", 8, 2, 3, 3, Q("184.32506 mm")),
    Sketcher.Constraint("DistanceY", 0, 3, -1, 1, Q("206.828733 mm")),
    Sketcher.Constraint("DistanceY", 1, 3, -1, 1, Q("199.757666 mm")),
    Sketcher.Constraint("DistanceX", -1, 1, 2, 3, Q("206.828733 mm")),
])
pocket1 = body.newObject("PartDesign::Pocket", "Pocket")
pocket1.Profile = sketch2
pocket1.Length = 10
pocket1.Reversed = True

doc.recompute()
